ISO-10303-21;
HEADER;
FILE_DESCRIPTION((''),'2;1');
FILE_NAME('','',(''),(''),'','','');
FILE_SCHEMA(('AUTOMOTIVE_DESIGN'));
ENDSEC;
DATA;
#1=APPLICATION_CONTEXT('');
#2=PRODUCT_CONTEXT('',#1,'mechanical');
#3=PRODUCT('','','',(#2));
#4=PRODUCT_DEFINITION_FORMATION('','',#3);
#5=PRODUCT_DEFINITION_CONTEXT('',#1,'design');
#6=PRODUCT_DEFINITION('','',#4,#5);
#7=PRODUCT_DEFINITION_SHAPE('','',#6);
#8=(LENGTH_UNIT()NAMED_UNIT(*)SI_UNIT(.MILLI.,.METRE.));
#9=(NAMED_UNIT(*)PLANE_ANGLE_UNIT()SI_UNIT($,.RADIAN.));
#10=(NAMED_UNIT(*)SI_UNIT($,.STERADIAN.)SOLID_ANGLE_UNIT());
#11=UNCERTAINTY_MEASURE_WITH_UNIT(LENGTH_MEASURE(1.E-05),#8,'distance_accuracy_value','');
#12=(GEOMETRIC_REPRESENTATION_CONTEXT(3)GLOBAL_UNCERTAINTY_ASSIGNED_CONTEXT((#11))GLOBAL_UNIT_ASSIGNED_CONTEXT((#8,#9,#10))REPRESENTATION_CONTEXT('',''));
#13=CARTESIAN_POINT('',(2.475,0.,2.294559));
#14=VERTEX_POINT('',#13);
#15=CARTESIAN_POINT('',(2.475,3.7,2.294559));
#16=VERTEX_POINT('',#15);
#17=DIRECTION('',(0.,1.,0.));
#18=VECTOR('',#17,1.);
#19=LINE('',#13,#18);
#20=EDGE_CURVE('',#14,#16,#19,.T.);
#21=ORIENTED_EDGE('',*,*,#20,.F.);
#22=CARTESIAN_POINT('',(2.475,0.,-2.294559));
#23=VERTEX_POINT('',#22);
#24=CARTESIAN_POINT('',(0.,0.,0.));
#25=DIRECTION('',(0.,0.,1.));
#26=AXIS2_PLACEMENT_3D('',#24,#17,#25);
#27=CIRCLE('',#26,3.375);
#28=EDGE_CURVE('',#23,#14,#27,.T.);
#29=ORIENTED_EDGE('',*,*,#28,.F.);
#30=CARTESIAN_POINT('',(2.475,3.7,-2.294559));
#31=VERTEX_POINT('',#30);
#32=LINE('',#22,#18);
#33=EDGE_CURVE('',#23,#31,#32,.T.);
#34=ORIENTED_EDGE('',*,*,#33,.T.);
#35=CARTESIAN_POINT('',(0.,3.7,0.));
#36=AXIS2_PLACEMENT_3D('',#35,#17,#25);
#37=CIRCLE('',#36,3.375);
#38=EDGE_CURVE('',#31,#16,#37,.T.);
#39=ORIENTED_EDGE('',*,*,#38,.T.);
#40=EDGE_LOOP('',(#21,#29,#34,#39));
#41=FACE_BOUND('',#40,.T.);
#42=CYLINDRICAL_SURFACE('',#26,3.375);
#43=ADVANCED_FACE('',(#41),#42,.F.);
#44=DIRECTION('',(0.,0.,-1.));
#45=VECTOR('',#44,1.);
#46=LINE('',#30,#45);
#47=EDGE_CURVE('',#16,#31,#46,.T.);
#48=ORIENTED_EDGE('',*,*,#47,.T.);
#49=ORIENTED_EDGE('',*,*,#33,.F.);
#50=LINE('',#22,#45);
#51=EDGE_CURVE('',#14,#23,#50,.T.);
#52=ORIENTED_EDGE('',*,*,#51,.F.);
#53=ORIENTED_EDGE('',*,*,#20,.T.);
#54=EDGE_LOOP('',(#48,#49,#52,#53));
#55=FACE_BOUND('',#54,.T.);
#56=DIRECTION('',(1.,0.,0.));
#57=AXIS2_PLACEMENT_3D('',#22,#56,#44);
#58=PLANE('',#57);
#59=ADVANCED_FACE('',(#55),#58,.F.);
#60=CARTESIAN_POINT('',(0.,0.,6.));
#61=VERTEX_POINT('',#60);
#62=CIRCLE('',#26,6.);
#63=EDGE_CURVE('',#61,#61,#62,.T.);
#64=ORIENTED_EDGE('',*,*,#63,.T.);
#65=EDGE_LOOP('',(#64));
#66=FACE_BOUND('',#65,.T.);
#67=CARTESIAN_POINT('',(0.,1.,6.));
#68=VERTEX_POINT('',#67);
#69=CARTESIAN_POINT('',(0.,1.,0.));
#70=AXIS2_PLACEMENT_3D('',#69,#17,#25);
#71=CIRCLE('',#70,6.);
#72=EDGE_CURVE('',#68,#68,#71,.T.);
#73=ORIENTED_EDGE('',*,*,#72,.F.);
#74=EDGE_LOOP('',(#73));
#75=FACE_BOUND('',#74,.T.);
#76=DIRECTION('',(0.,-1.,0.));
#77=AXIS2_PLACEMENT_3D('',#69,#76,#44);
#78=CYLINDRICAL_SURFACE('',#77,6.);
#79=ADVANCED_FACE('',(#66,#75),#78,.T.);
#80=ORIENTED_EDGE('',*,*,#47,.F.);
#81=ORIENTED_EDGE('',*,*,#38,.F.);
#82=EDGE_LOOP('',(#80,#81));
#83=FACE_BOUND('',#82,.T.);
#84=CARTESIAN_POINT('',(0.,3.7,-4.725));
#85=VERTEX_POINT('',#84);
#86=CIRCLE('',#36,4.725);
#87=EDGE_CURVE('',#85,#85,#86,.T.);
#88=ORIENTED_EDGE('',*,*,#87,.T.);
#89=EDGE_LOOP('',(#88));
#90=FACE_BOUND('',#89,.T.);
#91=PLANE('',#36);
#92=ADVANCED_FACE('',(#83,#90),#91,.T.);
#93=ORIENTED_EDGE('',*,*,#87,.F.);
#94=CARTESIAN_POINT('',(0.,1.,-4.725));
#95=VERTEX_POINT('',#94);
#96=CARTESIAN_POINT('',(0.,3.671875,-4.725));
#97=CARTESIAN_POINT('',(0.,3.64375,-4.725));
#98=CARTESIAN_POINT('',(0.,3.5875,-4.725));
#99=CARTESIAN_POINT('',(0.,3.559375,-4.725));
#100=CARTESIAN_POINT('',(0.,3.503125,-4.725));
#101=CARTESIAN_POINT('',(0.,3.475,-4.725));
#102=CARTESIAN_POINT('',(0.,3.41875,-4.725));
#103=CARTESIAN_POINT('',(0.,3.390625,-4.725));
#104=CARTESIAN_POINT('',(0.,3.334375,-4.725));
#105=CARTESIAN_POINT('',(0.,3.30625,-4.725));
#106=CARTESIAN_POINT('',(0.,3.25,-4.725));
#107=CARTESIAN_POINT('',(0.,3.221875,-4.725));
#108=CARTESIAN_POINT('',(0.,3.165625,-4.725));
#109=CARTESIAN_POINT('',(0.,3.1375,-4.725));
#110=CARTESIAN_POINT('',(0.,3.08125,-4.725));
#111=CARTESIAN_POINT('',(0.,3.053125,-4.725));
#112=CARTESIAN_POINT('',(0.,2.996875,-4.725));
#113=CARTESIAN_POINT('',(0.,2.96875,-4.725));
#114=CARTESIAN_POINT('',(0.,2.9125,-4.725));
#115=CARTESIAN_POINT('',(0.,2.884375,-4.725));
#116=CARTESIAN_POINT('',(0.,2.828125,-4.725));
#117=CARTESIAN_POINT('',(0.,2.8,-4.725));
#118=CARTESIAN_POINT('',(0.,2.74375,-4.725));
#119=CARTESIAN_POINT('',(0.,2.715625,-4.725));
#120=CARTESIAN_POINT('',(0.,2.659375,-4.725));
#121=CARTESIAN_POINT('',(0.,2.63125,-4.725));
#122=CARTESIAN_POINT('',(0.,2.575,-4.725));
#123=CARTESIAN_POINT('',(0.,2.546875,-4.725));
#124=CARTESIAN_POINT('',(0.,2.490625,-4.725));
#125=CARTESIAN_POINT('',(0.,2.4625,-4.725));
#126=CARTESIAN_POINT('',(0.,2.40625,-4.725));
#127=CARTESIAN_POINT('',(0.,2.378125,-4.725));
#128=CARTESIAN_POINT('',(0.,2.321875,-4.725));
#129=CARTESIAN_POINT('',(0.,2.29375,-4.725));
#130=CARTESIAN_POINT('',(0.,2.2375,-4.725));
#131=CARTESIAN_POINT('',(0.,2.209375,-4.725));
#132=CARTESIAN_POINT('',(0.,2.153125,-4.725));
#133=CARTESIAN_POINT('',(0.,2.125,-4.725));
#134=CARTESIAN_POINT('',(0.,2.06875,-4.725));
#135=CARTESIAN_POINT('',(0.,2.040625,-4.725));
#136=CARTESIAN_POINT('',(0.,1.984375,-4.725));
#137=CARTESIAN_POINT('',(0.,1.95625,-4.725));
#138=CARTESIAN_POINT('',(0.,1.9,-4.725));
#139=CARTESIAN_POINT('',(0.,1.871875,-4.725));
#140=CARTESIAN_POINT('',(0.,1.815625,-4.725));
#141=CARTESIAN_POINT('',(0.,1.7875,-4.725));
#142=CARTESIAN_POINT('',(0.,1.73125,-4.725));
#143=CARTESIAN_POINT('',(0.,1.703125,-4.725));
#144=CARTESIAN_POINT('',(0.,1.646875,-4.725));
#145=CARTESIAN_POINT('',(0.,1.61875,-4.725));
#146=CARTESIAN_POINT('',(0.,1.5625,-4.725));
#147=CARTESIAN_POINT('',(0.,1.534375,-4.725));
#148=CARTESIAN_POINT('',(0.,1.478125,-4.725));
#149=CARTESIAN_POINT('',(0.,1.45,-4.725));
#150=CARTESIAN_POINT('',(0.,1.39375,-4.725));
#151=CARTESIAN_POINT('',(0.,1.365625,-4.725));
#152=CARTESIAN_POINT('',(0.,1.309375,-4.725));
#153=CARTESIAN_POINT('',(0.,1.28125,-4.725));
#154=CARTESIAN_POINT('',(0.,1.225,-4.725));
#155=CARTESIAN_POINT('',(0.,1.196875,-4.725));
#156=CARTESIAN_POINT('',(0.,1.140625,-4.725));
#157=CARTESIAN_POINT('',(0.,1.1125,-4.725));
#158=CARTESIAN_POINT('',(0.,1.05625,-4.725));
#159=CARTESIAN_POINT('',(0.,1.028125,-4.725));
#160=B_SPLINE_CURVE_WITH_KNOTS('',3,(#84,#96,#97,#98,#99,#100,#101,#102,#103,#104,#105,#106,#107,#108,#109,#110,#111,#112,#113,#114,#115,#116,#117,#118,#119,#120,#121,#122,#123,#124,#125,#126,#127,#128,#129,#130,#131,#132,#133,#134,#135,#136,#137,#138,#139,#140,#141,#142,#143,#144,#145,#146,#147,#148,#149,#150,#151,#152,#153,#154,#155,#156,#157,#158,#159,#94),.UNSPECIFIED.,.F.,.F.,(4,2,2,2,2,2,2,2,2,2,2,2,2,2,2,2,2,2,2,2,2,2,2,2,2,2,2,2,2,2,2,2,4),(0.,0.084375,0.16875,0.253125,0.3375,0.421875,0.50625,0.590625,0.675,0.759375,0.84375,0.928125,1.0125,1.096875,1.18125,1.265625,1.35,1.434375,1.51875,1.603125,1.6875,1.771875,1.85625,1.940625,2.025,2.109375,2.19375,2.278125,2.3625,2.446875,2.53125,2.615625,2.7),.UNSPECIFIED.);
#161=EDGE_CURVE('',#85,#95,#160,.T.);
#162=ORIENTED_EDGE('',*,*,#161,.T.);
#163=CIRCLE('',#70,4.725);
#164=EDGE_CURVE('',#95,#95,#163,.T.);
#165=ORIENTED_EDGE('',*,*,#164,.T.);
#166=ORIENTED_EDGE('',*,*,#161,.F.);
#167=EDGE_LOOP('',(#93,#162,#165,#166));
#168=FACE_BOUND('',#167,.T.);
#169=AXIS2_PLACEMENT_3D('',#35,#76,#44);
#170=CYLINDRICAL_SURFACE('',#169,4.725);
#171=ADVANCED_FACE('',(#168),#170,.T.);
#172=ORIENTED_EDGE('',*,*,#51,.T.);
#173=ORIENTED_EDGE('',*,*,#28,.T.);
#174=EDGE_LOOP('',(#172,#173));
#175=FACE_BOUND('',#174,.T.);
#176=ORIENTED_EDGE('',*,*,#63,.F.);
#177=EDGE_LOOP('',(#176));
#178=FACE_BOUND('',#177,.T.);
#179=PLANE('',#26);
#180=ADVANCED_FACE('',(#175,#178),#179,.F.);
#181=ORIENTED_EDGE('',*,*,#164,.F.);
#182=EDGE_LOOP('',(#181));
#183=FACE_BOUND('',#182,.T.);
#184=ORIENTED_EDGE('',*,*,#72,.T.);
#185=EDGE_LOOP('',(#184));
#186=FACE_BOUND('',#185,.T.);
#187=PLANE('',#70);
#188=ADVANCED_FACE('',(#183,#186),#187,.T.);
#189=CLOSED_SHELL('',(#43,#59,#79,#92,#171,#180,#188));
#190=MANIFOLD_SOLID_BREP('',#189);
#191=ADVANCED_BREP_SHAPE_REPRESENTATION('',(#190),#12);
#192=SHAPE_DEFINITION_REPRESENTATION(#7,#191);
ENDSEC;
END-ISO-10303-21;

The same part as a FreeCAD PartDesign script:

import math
import FreeCAD as App
import Part
import Sketcher
from FreeCAD import Vector
Q = App.Units.Quantity

doc = App.newDocument("Part")
body = doc.addObject("PartDesign::Body", "Body")

# Sketch on XZ plane
sketch1 = doc.addObject("Sketcher::SketchObject", "Sketch")
body.addObject(sketch1)
sketch1.AttachmentSupport = (doc.XZ_Plane, [""])
sketch1.MapMode = "FlatFace"
sketch1.addGeometry(Part.Circle(Vector(0, 0, 0), Vector(0, 0, 1), 6), False)
sketch1.addConstraint([
    Sketcher.Constraint("Coincident", 0, 3, -1, 1),
    Sketcher.Constraint("Diameter", 0, Q("12 mm")),
])
pad1 = doc.addObject("PartDesign::Pad", "Pad")
body.addObject(pad1)
pad1.Profile = sketch1
pad1.Length = 1
pad1.Reversed = True

# Sketch on XZ plane
sketch2 = doc.addObject("Sketcher::SketchObject", "Sketch001")
body.addObject(sketch2)
sketch2.AttachmentSupport = (doc.XZ_Plane, [""])
sketch2.MapMode = "FlatFace"
sketch2.AttachmentOffset = App.Placement(Vector(0, 0, -1), App.Rotation())
sketch2.addGeometry(Part.Circle(Vector(0, 0, 0), Vector(0, 0, 1), 4.7), False)
sketch2.addConstraint([
    Sketcher.Constraint("Coincident", 0, 3, -1, 1),
    Sketcher.Constraint("Diameter", 0, Q("9.45 mm")),
])
pad2 = doc.addObject("PartDesign::Pad", "Pad001")
body.addObject(pad2)
pad2.Profile = sketch2
pad2.Length = 2.7
pad2.Reversed = True

# Sketch on XZ plane
sketch3 = doc.addObject("Sketcher::SketchObject", "Sketch002")
body.addObject(sketch3)
sketch3.AttachmentSupport = (doc.XZ_Plane, [""])
sketch3.MapMode = "FlatFace"
sketch3.AttachmentOffset = App.Placement(Vector(0, 0, -3.7), App.Rotation())
sketch3.addGeometry([
    Part.LineSegment(Vector(2.5, 2.3, 0), Vector(2.5, -2.3, 0)),
    Part.ArcOfCircle(Part.Circle(Vector(0, 0, 0), Vector(0, 0, 1), 3.4), math.radians(43), math.radians(317)),
], False)
sketch3.addConstraint([
    Sketcher.Constraint("Coincident", 0, 1, 1, 1),
    Sketcher.Constraint("Coincident", 1, 2, 0, 2),
    Sketcher.Constraint("Vertical", 0),
    Sketcher.Constraint("Coincident", 1, 3, -1, 1),
    Sketcher.Constraint("Radius", 1, Q("3.375 mm")),
    Sketcher.Constraint("DistanceX", -1, 1, 0, 1, Q("2.475 mm")),
])
pocket1 = doc.addObject("PartDesign::Pocket", "Pocket")
body.addObject(pocket1)
pocket1.Profile = sketch3
pocket1.Type = "ThroughAll"
pocket1.Reversed = True

doc.recompute()
